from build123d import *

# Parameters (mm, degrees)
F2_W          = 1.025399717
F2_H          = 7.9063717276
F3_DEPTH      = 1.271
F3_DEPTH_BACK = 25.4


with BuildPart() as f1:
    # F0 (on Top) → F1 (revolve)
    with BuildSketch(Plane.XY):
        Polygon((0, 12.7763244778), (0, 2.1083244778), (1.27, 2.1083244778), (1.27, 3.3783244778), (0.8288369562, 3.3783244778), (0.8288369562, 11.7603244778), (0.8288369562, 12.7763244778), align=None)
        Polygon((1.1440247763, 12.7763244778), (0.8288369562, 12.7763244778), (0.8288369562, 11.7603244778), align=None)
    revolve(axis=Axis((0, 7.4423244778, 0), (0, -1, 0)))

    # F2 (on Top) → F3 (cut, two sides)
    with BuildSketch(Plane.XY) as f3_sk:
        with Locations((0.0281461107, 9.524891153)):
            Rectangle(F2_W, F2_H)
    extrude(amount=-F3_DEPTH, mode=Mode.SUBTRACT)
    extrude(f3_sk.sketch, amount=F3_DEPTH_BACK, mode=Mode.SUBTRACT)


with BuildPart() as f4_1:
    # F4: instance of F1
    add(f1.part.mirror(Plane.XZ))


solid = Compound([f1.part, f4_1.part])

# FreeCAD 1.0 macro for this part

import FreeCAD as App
import Part
import Sketcher
from FreeCAD import Vector
Q = App.Units.Quantity

doc = App.newDocument("Part")
body = doc.addObject("PartDesign::Body", "Body")

sketch1 = body.newObject("Sketcher::SketchObject", "Sketch")
sketch1.AttachmentSupport = (doc.getObject("XY_Plane"), [""])
sketch1.MapMode = "FlatFace"
sketch1.addGeometry([
    Part.LineSegment(Vector(0, 12.78, 0), Vector(0, 2.11, 0)),
    Part.LineSegment(Vector(0, 2.11, 0), Vector(1.27, 2.11, 0)),
    Part.LineSegment(Vector(1.27, 2.11, 0), Vector(1.27, 3.38, 0)),
    Part.LineSegment(Vector(1.27, 3.38, 0), Vector(0.83, 3.38, 0)),
    Part.LineSegment(Vector(0.83, 3.38, 0), Vector(0.83, 11.76, 0)),
    Part.LineSegment(Vector(0.83, 11.76, 0), Vector(1.14, 12.78, 0)),
    Part.LineSegment(Vector(1.14, 12.78, 0), Vector(0, 12.78, 0)),
], False)
sketch1.addConstraint([
    Sketcher.Constraint("Coincident", 0, 2, 1, 1),
    Sketcher.Constraint("Coincident", 1, 2, 2, 1),
    Sketcher.Constraint("Coincident", 2, 2, 3, 1),
    Sketcher.Constraint("Coincident", 3, 2, 4, 1),
    Sketcher.Constraint("Coincident", 4, 2, 5, 1),
    Sketcher.Constraint("Coincident", 5, 2, 6, 1),
    Sketcher.Constraint("Coincident", 6, 2, 0, 1),
    Sketcher.Constraint("Vertical", 0),
    Sketcher.Constraint("Horizontal", 1),
    Sketcher.Constraint("Vertical", 2),
    Sketcher.Constraint("Horizontal", 3),
    Sketcher.Constraint("Vertical", 4),
    Sketcher.Constraint("Horizontal", 6),
    Sketcher.Constraint("PointOnObject", 0, 2, -2),
    Sketcher.Constraint("Equal", 1, 2),
    Sketcher.Constraint("DistanceX", 1, 1, 1, 2, Q("0.05 in")),
    Sketcher.Constraint("DistanceY", 0, 2, 0, 1, Q("0.42 in")),
    Sketcher.Constraint("DistanceY", 4, 1, 4, 2, Q("0.33 in")),
    Sketcher.Constraint("DistanceX", 3, 2, 3, 1, Q("0.441163 mm")),
    Sketcher.Constraint("DistanceX", 6, 2, 6, 1, Q("1.144025 mm")),
    Sketcher.Constraint("DistanceY", -1, 1, 0, 2, Q("2.108324 mm")),
])
revolution = body.newObject("PartDesign::Revolution", "Revolution")
revolution.Profile = sketch1
revolution.ReferenceAxis = (sketch1, ["V_Axis"])
revolution.Angle = 360

sketch2 = body.newObject("Sketcher::SketchObject", "Sketch001")
sketch2.AttachmentSupport = (doc.getObject("XY_Plane"), [""])
sketch2.MapMode = "FlatFace"
sketch2.addGeometry([
    Part.LineSegment(Vector(-0.5, 13.5, 0), Vector(-0.5, 5.6, 0)),
    Part.LineSegment(Vector(-0.5, 5.6, 0), Vector(0.5, 5.6, 0)),
    Part.LineSegment(Vector(0.5, 5.6, 0), Vector(0.5, 13.5, 0)),
    Part.LineSegment(Vector(0.5, 13.5, 0), Vector(-0.5, 13.5, 0)),
], False)
sketch2.addConstraint([
    Sketcher.Constraint("Coincident", 0, 2, 1, 1),
    Sketcher.Constraint("Coincident", 1, 2, 2, 1),
    Sketcher.Constraint("Coincident", 2, 2, 3, 1),
    Sketcher.Constraint("Coincident", 3, 2, 0, 1),
    Sketcher.Constraint("Vertical", 0),
    Sketcher.Constraint("Horizontal", 1),
    Sketcher.Constraint("Vertical", 2),
    Sketcher.Constraint("Horizontal", 3),
    Sketcher.Constraint("DistanceX", 1, 1, 1, 2, Q("1.0254 mm")),
    Sketcher.Constraint("DistanceY", 0, 2, 0, 1, Q("7.906372 mm")),
    Sketcher.Constraint("DistanceX", 0, 2, -1, 1, Q("0.484554 mm")),
    Sketcher.Constraint("DistanceY", -1, 1, 0, 2, Q("5.571705 mm")),
])
pocket1 = body.newObject("PartDesign::Pocket", "Pocket")
pocket1.Profile = sketch2
pocket1.Type = "ThroughAll"
pocket1.Midplane = True
body2 = doc.addObject("PartDesign::Body", "Body001")
doc.recompute()

mirroring = doc.addObject("Part::Mirroring", "Mirroring")
mirroring.Source = body
mirroring.Base = Vector(0, 0, 0)
mirroring.Normal = Vector(0, -1, 0)
body2.BaseFeature = mirroring
doc.recompute()
mirroring.Visibility = False

doc.recompute()
